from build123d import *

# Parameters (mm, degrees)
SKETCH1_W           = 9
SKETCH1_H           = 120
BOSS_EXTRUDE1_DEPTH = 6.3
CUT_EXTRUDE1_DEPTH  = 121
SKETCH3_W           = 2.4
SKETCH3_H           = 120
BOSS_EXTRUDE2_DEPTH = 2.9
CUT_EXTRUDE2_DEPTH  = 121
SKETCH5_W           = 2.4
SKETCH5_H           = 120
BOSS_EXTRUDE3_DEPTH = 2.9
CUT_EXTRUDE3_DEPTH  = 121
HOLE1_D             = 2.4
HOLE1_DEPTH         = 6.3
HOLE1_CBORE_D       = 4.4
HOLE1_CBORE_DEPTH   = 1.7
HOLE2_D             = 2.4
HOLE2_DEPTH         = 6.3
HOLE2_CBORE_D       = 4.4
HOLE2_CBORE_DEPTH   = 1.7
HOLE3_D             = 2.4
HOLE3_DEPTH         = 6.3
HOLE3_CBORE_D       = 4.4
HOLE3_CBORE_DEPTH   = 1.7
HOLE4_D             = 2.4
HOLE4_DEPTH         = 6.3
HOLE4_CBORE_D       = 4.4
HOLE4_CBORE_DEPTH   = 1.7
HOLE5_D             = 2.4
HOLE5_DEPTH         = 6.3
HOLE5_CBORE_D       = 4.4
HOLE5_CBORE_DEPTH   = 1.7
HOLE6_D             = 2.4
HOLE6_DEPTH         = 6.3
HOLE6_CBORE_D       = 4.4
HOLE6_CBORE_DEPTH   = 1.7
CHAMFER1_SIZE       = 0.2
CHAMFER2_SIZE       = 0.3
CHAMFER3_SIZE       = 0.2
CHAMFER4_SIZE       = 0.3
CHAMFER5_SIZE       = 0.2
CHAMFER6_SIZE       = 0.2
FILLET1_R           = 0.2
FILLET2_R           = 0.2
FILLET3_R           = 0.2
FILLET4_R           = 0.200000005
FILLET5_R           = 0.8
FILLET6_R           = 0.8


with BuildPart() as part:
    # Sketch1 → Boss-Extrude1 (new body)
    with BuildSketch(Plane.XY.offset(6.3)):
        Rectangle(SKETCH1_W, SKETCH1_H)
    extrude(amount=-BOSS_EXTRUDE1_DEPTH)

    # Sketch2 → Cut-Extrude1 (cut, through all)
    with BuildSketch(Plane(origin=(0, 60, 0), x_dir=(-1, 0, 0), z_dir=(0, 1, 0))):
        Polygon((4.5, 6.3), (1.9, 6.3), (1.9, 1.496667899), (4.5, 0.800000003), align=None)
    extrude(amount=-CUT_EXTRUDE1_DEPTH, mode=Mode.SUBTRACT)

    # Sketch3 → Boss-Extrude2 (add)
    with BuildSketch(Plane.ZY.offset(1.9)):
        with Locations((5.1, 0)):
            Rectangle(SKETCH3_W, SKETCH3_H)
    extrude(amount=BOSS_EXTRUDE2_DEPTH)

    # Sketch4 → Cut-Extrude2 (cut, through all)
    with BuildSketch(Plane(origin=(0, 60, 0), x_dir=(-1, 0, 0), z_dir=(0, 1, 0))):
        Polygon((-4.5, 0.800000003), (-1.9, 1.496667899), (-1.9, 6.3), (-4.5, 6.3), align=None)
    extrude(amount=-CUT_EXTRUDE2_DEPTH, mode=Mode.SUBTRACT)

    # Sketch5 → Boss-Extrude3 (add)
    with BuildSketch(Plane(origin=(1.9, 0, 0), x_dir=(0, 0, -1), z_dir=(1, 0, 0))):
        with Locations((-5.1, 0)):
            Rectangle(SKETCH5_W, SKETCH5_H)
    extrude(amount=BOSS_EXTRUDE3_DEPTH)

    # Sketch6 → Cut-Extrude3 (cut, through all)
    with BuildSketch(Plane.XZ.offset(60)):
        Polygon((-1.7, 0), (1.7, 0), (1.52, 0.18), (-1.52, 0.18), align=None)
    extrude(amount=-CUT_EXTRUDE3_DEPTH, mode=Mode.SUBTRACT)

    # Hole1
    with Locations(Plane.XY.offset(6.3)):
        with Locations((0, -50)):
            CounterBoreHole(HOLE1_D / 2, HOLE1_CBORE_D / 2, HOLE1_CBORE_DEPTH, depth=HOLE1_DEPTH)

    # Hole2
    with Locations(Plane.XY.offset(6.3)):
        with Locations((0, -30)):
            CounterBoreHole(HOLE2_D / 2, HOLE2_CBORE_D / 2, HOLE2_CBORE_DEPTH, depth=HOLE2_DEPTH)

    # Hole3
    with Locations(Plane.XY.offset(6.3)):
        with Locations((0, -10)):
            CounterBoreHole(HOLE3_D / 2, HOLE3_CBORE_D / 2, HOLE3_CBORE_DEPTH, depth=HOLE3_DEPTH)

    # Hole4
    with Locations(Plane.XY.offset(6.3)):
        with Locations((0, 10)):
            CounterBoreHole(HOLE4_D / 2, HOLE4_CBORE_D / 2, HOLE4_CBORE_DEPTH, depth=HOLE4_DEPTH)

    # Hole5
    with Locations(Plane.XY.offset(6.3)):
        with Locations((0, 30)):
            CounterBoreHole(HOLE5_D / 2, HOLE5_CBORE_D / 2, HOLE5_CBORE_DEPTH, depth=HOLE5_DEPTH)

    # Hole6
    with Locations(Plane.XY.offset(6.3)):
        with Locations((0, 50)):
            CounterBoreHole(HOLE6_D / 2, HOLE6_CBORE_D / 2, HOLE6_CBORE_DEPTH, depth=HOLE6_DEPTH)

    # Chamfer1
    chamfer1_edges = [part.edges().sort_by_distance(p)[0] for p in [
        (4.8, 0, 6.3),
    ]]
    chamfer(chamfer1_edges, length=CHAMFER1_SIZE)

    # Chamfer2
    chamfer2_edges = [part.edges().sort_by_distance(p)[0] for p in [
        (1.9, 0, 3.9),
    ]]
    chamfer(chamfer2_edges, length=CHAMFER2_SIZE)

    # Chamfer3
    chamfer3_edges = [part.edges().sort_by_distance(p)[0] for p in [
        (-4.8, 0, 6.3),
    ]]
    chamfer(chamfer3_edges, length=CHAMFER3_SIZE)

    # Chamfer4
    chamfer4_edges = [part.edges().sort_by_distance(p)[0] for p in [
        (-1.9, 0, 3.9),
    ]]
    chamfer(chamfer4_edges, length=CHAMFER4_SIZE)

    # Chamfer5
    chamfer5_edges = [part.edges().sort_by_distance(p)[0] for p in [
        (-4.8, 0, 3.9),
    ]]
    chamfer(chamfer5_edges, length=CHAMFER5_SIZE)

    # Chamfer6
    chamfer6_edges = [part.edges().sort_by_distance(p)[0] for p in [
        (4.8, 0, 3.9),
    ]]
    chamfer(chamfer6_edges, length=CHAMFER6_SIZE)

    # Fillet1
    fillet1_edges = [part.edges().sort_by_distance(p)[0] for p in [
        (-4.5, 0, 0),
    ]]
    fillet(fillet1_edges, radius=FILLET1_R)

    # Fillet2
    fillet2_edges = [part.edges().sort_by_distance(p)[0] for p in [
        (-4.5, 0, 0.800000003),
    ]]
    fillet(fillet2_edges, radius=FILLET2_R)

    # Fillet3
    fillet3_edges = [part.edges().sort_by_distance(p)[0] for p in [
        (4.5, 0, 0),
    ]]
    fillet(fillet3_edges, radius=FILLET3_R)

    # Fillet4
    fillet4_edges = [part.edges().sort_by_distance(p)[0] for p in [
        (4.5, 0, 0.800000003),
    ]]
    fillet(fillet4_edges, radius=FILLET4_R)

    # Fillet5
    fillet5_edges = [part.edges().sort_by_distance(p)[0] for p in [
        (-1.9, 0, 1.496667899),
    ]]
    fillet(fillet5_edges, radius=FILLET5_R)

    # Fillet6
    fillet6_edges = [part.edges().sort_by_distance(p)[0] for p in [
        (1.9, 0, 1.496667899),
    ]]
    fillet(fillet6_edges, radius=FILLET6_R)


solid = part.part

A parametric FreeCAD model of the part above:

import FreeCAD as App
import Part
import Sketcher

V = App.Vector
Q = App.Units.Quantity


def edges_at(feature, points):
    """Names of the edges that pass closest to the given points."""
    edges = feature.Shape.Edges
    near = lambda p: min(range(len(edges)), key=lambda i: edges[i].distToShape(Part.Vertex(*p))[0])
    return sorted({f"Edge{near(p) + 1}" for p in points})


def add_polygon(sketch, points):
    """Adds a closed chain of lines whose ends are joined by coincident constraints."""
    first, n = sketch.GeometryCount, len(points)
    for a, b in zip(points, points[1:] + points[:1]):
        sketch.addGeometry(Part.LineSegment(App.Vector(*a, 0), App.Vector(*b, 0)), False)
    for i in range(n):
        sketch.addConstraint(Sketcher.Constraint("Coincident", first + i, 2, first + (i + 1) % n, 1))

doc = App.newDocument("Part")
body = doc.addObject("PartDesign::Body", "Body")

sketch1 = doc.addObject("Sketcher::SketchObject", "Sketch")
body.addObject(sketch1)
sketch1.AttachmentSupport = (doc.XY_Plane, [""])
sketch1.MapMode = "FlatFace"
sketch1.AttachmentOffset = App.Placement(V(0, 0, 6.3), App.Rotation())
add_polygon(sketch1, [(-4, 60), (-4, -60), (4, -60), (4, 60)])
sketch1.addConstraint(Sketcher.Constraint("Vertical", 0))
sketch1.addConstraint(Sketcher.Constraint("Horizontal", 1))
sketch1.addConstraint(Sketcher.Constraint("Vertical", 2))
sketch1.addConstraint(Sketcher.Constraint("Horizontal", 3))
sketch1.addConstraint(Sketcher.Constraint("Symmetric", 0, 2, 2, 2, -1, 1))
sketch1.addConstraint(Sketcher.Constraint("DistanceX", 1, 1, 1, 2, 9.0))
sketch1.addConstraint(Sketcher.Constraint("DistanceY", 0, 2, 0, 1, 120.0))
pad1 = doc.addObject("PartDesign::Pad", "Pad")
body.addObject(pad1)
pad1.Profile = sketch1
pad1.Length = 6.3
pad1.Reversed = True

sketch2 = doc.addObject("Sketcher::SketchObject", "Sketch001")
body.addObject(sketch2)
sketch2.AttachmentSupport = (doc.XZ_Plane, [""])
sketch2.MapMode = "FlatFace"
sketch2.AttachmentOffset = App.Placement(V(0, 0, -60), App.Rotation())
add_polygon(sketch2, [(-4.5, 6.3), (-1.9, 6.3), (-1.9, 1.5), (-4.5, 0.8)])
sketch2.addConstraint(Sketcher.Constraint("Horizontal", 0))
sketch2.addConstraint(Sketcher.Constraint("Vertical", 1))
sketch2.addConstraint(Sketcher.Constraint("Vertical", 3))
sketch2.addConstraint(Sketcher.Constraint("Angle", 2, Q("-165 deg")))
sketch2.addConstraint(Sketcher.Constraint("DistanceX", 0, 1, 0, 2, 2.6))
sketch2.addConstraint(Sketcher.Constraint("DistanceY", 3, 1, 3, 2, 5.5))
sketch2.addConstraint(Sketcher.Constraint("DistanceX", 0, 2, -1, 1, 1.9))
sketch2.addConstraint(Sketcher.Constraint("DistanceY", -1, 1, 0, 2, 6.3))
pocket1 = doc.addObject("PartDesign::Pocket", "Pocket")
body.addObject(pocket1)
pocket1.Profile = sketch2
pocket1.Type = "ThroughAll"
pocket1.Reversed = True

sketch3 = doc.addObject("Sketcher::SketchObject", "Sketch002")
body.addObject(sketch3)
sketch3.AttachmentSupport = (doc.YZ_Plane, [""])
sketch3.MapMode = "FlatFace"
sketch3.AttachmentOffset = App.Placement(V(0, 0, -1.9), App.Rotation())
add_polygon(sketch3, [(60, 3.9), (-60, 3.9), (-60, 6.3), (60, 6.3)])
sketch3.addConstraint(Sketcher.Constraint("Horizontal", 0))
sketch3.addConstraint(Sketcher.Constraint("Vertical", 1))
sketch3.addConstraint(Sketcher.Constraint("Horizontal", 2))
sketch3.addConstraint(Sketcher.Constraint("Vertical", 3))
sketch3.addConstraint(Sketcher.Constraint("DistanceX", 0, 2, 0, 1, 120.0))
sketch3.addConstraint(Sketcher.Constraint("DistanceY", 1, 1, 1, 2, 2.4))
sketch3.addConstraint(Sketcher.Constraint("DistanceX", 0, 2, -1, 1, 60.0))
sketch3.addConstraint(Sketcher.Constraint("DistanceY", -1, 1, 0, 2, 3.9))
pad2 = doc.addObject("PartDesign::Pad", "Pad001")
body.addObject(pad2)
pad2.Profile = sketch3
pad2.Length = 2.9
pad2.Reversed = True

sketch4 = doc.addObject("Sketcher::SketchObject", "Sketch003")
body.addObject(sketch4)
sketch4.AttachmentSupport = (doc.XZ_Plane, [""])
sketch4.MapMode = "FlatFace"
sketch4.AttachmentOffset = App.Placement(V(0, 0, -60), App.Rotation())
add_polygon(sketch4, [(4.5, 0.8), (1.9, 1.5), (1.9, 6.3), (4.5, 6.3)])
sketch4.addConstraint(Sketcher.Constraint("Vertical", 1))
sketch4.addConstraint(Sketcher.Constraint("Horizontal", 2))
sketch4.addConstraint(Sketcher.Constraint("Vertical", 3))
sketch4.addConstraint(Sketcher.Constraint("Angle", 0, Q("165 deg")))
sketch4.addConstraint(Sketcher.Constraint("DistanceX", 2, 1, 2, 2, 2.6))
sketch4.addConstraint(Sketcher.Constraint("DistanceY", 3, 2, 3, 1, 5.5))
sketch4.addConstraint(Sketcher.Constraint("DistanceX", -1, 1, 0, 2, 1.9))
sketch4.addConstraint(Sketcher.Constraint("DistanceY", -1, 1, 1, 2, 6.3))
pocket2 = doc.addObject("PartDesign::Pocket", "Pocket001")
body.addObject(pocket2)
pocket2.Profile = sketch4
pocket2.Type = "ThroughAll"
pocket2.Reversed = True

sketch5 = doc.addObject("Sketcher::SketchObject", "Sketch004")
body.addObject(sketch5)
sketch5.AttachmentSupport = (doc.YZ_Plane, [""])
sketch5.MapMode = "FlatFace"
sketch5.AttachmentOffset = App.Placement(V(0, 0, 1.9), App.Rotation())
add_polygon(sketch5, [(60, 6.3), (-60, 6.3), (-60, 3.9), (60, 3.9)])
sketch5.addConstraint(Sketcher.Constraint("Horizontal", 0))
sketch5.addConstraint(Sketcher.Constraint("Vertical", 1))
sketch5.addConstraint(Sketcher.Constraint("Horizontal", 2))
sketch5.addConstraint(Sketcher.Constraint("Vertical", 3))
sketch5.addConstraint(Sketcher.Constraint("DistanceX", 0, 2, 0, 1, 120.0))
sketch5.addConstraint(Sketcher.Constraint("DistanceY", 1, 2, 1, 1, 2.4))
sketch5.addConstraint(Sketcher.Constraint("DistanceX", 0, 2, -1, 1, 60.0))
sketch5.addConstraint(Sketcher.Constraint("DistanceY", -1, 1, 0, 2, 6.3))
pad3 = doc.addObject("PartDesign::Pad", "Pad002")
body.addObject(pad3)
pad3.Profile = sketch5
pad3.Length = 2.9

sketch6 = doc.addObject("Sketcher::SketchObject", "Sketch005")
body.addObject(sketch6)
sketch6.AttachmentSupport = (doc.XZ_Plane, [""])
sketch6.MapMode = "FlatFace"
sketch6.AttachmentOffset = App.Placement(V(0, 0, 60), App.Rotation())
add_polygon(sketch6, [(-1.7, 0), (1.7, 0), (1.52, 0.18), (-1.52, 0.18)])
sketch6.addConstraint(Sketcher.Constraint("Horizontal", 0))
sketch6.addConstraint(Sketcher.Constraint("Horizontal", 2))
sketch6.addConstraint(Sketcher.Constraint("Symmetric", 0, 2, 3, 2, -1, 1))
sketch6.addConstraint(Sketcher.Constraint("Perpendicular", 1, 3))
sketch6.addConstraint(Sketcher.Constraint("Equal", 1, 3))
sketch6.addConstraint(Sketcher.Constraint("DistanceX", 0, 1, 0, 2, 3.4))
sketch6.addConstraint(Sketcher.Constraint("DistanceX", 2, 2, 2, 1, 3.04))
pocket3 = doc.addObject("PartDesign::Pocket", "Pocket002")
body.addObject(pocket3)
pocket3.Profile = sketch6
pocket3.Type = "ThroughAll"

sketch7 = doc.addObject("Sketcher::SketchObject", "Sketch006")
body.addObject(sketch7)
sketch7.AttachmentSupport = (doc.XY_Plane, [""])
sketch7.MapMode = "FlatFace"
sketch7.AttachmentOffset = App.Placement(V(0, 0, 6.3), App.Rotation())
sketch7.addGeometry(Part.Circle(V(0, -50, 0), V(0, 0, 1), 1.2), False)
sketch7.addConstraint(Sketcher.Constraint("PointOnObject", 0, 3, -2))
sketch7.addConstraint(Sketcher.Constraint("Diameter", 0, 2.4))
sketch7.addConstraint(Sketcher.Constraint("DistanceY", 0, 3, -1, 1, 50.0))
doc.recompute()
hole = doc.addObject("PartDesign::Hole", "Hole")
body.addObject(hole)
hole.Profile = sketch7
hole.ThreadType = "None"
hole.Diameter = 2.4
hole.DepthType = "Dimension"
hole.Depth = 6.3
hole.DrillPoint = "Flat"
hole.HoleCutType = "Counterbore"
hole.HoleCutDiameter = 4.4
hole.HoleCutDepth = 1.7

sketch8 = doc.addObject("Sketcher::SketchObject", "Sketch007")
body.addObject(sketch8)
sketch8.AttachmentSupport = (doc.XY_Plane, [""])
sketch8.MapMode = "FlatFace"
sketch8.AttachmentOffset = App.Placement(V(0, 0, 6.3), App.Rotation())
sketch8.addGeometry(Part.Circle(V(0, -30, 0), V(0, 0, 1), 1.2), False)
sketch8.addConstraint(Sketcher.Constraint("PointOnObject", 0, 3, -2))
sketch8.addConstraint(Sketcher.Constraint("Diameter", 0, 2.4))
sketch8.addConstraint(Sketcher.Constraint("DistanceY", 0, 3, -1, 1, 30.0))
doc.recompute()
hole2 = doc.addObject("PartDesign::Hole", "Hole001")
body.addObject(hole2)
hole2.Profile = sketch8
hole2.ThreadType = "None"
hole2.Diameter = 2.4
hole2.DepthType = "Dimension"
hole2.Depth = 6.3
hole2.DrillPoint = "Flat"
hole2.HoleCutType = "Counterbore"
hole2.HoleCutDiameter = 4.4
hole2.HoleCutDepth = 1.7

sketch9 = doc.addObject("Sketcher::SketchObject", "Sketch008")
body.addObject(sketch9)
sketch9.AttachmentSupport = (doc.XY_Plane, [""])
sketch9.MapMode = "FlatFace"
sketch9.AttachmentOffset = App.Placement(V(0, 0, 6.3), App.Rotation())
sketch9.addGeometry(Part.Circle(V(0, -10, 0), V(0, 0, 1), 1.2), False)
sketch9.addConstraint(Sketcher.Constraint("PointOnObject", 0, 3, -2))
sketch9.addConstraint(Sketcher.Constraint("Diameter", 0, 2.4))
sketch9.addConstraint(Sketcher.Constraint("DistanceY", 0, 3, -1, 1, 10.0))
doc.recompute()
hole3 = doc.addObject("PartDesign::Hole", "Hole002")
body.addObject(hole3)
hole3.Profile = sketch9
hole3.ThreadType = "None"
hole3.Diameter = 2.4
hole3.DepthType = "Dimension"
hole3.Depth = 6.3
hole3.DrillPoint = "Flat"
hole3.HoleCutType = "Counterbore"
hole3.HoleCutDiameter = 4.4
hole3.HoleCutDepth = 1.7

sketch10 = doc.addObject("Sketcher::SketchObject", "Sketch009")
body.addObject(sketch10)
sketch10.AttachmentSupport = (doc.XY_Plane, [""])
sketch10.MapMode = "FlatFace"
sketch10.AttachmentOffset = App.Placement(V(0, 0, 6.3), App.Rotation())
sketch10.addGeometry(Part.Circle(V(0, 10, 0), V(0, 0, 1), 1.2), False)
sketch10.addConstraint(Sketcher.Constraint("PointOnObject", 0, 3, -2))
sketch10.addConstraint(Sketcher.Constraint("Diameter", 0, 2.4))
sketch10.addConstraint(Sketcher.Constraint("DistanceY", -1, 1, 0, 3, 10.0))
doc.recompute()
hole4 = doc.addObject("PartDesign::Hole", "Hole003")
body.addObject(hole4)
hole4.Profile = sketch10
hole4.ThreadType = "None"
hole4.Diameter = 2.4
hole4.DepthType = "Dimension"
hole4.Depth = 6.3
hole4.DrillPoint = "Flat"
hole4.HoleCutType = "Counterbore"
hole4.HoleCutDiameter = 4.4
hole4.HoleCutDepth = 1.7

sketch11 = doc.addObject("Sketcher::SketchObject", "Sketch010")
body.addObject(sketch11)
sketch11.AttachmentSupport = (doc.XY_Plane, [""])
sketch11.MapMode = "FlatFace"
sketch11.AttachmentOffset = App.Placement(V(0, 0, 6.3), App.Rotation())
sketch11.addGeometry(Part.Circle(V(0, 30, 0), V(0, 0, 1), 1.2), False)
sketch11.addConstraint(Sketcher.Constraint("PointOnObject", 0, 3, -2))
sketch11.addConstraint(Sketcher.Constraint("Diameter", 0, 2.4))
sketch11.addConstraint(Sketcher.Constraint("DistanceY", -1, 1, 0, 3, 30.0))
doc.recompute()
hole5 = doc.addObject("PartDesign::Hole", "Hole004")
body.addObject(hole5)
hole5.Profile = sketch11
hole5.ThreadType = "None"
hole5.Diameter = 2.4
hole5.DepthType = "Dimension"
hole5.Depth = 6.3
hole5.DrillPoint = "Flat"
hole5.HoleCutType = "Counterbore"
hole5.HoleCutDiameter = 4.4
hole5.HoleCutDepth = 1.7

sketch12 = doc.addObject("Sketcher::SketchObject", "Sketch011")
body.addObject(sketch12)
sketch12.AttachmentSupport = (doc.XY_Plane, [""])
sketch12.MapMode = "FlatFace"
sketch12.AttachmentOffset = App.Placement(V(0, 0, 6.3), App.Rotation())
sketch12.addGeometry(Part.Circle(V(0, 50, 0), V(0, 0, 1), 1.2), False)
sketch12.addConstraint(Sketcher.Constraint("PointOnObject", 0, 3, -2))
sketch12.addConstraint(Sketcher.Constraint("Diameter", 0, 2.4))
sketch12.addConstraint(Sketcher.Constraint("DistanceY", -1, 1, 0, 3, 50.0))
doc.recompute()
hole6 = doc.addObject("PartDesign::Hole", "Hole005")
body.addObject(hole6)
hole6.Profile = sketch12
hole6.ThreadType = "None"
hole6.Diameter = 2.4
hole6.DepthType = "Dimension"
hole6.Depth = 6.3
hole6.DrillPoint = "Flat"
hole6.HoleCutType = "Counterbore"
hole6.HoleCutDiameter = 4.4
hole6.HoleCutDepth = 1.7
doc.recompute()

chamfer = doc.addObject("PartDesign::Chamfer", "Chamfer")
body.addObject(chamfer)
chamfer.Base = (hole6, edges_at(hole6, [(4.8, 0, 6.3)]))
chamfer.Size = 0.2
doc.recompute()

chamfer2 = doc.addObject("PartDesign::Chamfer", "Chamfer001")
body.addObject(chamfer2)
chamfer2.Base = (chamfer, edges_at(chamfer, [(1.9, 0, 3.9)]))
chamfer2.Size = 0.3
doc.recompute()

chamfer3 = doc.addObject("PartDesign::Chamfer", "Chamfer002")
body.addObject(chamfer3)
chamfer3.Base = (chamfer2, edges_at(chamfer2, [(-4.8, 0, 6.3)]))
chamfer3.Size = 0.2
doc.recompute()

chamfer4 = doc.addObject("PartDesign::Chamfer", "Chamfer003")
body.addObject(chamfer4)
chamfer4.Base = (chamfer3, edges_at(chamfer3, [(-1.9, 0, 3.9)]))
chamfer4.Size = 0.3
doc.recompute()

chamfer5 = doc.addObject("PartDesign::Chamfer", "Chamfer004")
body.addObject(chamfer5)
chamfer5.Base = (chamfer4, edges_at(chamfer4, [(-4.8, 0, 3.9)]))
chamfer5.Size = 0.2
doc.recompute()

chamfer6 = doc.addObject("PartDesign::Chamfer", "Chamfer005")
body.addObject(chamfer6)
chamfer6.Base = (chamfer5, edges_at(chamfer5, [(4.8, 0, 3.9)]))
chamfer6.Size = 0.2
doc.recompute()

fillet = doc.addObject("PartDesign::Fillet", "Fillet")
body.addObject(fillet)
fillet.Base = (chamfer6, edges_at(chamfer6, [(-4.5, 0, 0)]))
fillet.Radius = 0.2
doc.recompute()

fillet2 = doc.addObject("PartDesign::Fillet", "Fillet001")
body.addObject(fillet2)
fillet2.Base = (fillet, edges_at(fillet, [(-4.5, 0, 0.8)]))
fillet2.Radius = 0.2
doc.recompute()

fillet3 = doc.addObject("PartDesign::Fillet", "Fillet002")
body.addObject(fillet3)
fillet3.Base = (fillet2, edges_at(fillet2, [(4.5, 0, 0)]))
fillet3.Radius = 0.2
doc.recompute()

fillet4 = doc.addObject("PartDesign::Fillet", "Fillet003")
body.addObject(fillet4)
fillet4.Base = (fillet3, edges_at(fillet3, [(4.5, 0, 0.8)]))
fillet4.Radius = 0.2
doc.recompute()

fillet5 = doc.addObject("PartDesign::Fillet", "Fillet004")
body.addObject(fillet5)
fillet5.Base = (fillet4, edges_at(fillet4, [(-1.9, 0, 1.497)]))
fillet5.Radius = 0.8
doc.recompute()

fillet6 = doc.addObject("PartDesign::Fillet", "Fillet005")
body.addObject(fillet6)
fillet6.Base = (fillet5, edges_at(fillet5, [(1.9, 0, 1.497)]))
fillet6.Radius = 0.8

doc.recompute()
